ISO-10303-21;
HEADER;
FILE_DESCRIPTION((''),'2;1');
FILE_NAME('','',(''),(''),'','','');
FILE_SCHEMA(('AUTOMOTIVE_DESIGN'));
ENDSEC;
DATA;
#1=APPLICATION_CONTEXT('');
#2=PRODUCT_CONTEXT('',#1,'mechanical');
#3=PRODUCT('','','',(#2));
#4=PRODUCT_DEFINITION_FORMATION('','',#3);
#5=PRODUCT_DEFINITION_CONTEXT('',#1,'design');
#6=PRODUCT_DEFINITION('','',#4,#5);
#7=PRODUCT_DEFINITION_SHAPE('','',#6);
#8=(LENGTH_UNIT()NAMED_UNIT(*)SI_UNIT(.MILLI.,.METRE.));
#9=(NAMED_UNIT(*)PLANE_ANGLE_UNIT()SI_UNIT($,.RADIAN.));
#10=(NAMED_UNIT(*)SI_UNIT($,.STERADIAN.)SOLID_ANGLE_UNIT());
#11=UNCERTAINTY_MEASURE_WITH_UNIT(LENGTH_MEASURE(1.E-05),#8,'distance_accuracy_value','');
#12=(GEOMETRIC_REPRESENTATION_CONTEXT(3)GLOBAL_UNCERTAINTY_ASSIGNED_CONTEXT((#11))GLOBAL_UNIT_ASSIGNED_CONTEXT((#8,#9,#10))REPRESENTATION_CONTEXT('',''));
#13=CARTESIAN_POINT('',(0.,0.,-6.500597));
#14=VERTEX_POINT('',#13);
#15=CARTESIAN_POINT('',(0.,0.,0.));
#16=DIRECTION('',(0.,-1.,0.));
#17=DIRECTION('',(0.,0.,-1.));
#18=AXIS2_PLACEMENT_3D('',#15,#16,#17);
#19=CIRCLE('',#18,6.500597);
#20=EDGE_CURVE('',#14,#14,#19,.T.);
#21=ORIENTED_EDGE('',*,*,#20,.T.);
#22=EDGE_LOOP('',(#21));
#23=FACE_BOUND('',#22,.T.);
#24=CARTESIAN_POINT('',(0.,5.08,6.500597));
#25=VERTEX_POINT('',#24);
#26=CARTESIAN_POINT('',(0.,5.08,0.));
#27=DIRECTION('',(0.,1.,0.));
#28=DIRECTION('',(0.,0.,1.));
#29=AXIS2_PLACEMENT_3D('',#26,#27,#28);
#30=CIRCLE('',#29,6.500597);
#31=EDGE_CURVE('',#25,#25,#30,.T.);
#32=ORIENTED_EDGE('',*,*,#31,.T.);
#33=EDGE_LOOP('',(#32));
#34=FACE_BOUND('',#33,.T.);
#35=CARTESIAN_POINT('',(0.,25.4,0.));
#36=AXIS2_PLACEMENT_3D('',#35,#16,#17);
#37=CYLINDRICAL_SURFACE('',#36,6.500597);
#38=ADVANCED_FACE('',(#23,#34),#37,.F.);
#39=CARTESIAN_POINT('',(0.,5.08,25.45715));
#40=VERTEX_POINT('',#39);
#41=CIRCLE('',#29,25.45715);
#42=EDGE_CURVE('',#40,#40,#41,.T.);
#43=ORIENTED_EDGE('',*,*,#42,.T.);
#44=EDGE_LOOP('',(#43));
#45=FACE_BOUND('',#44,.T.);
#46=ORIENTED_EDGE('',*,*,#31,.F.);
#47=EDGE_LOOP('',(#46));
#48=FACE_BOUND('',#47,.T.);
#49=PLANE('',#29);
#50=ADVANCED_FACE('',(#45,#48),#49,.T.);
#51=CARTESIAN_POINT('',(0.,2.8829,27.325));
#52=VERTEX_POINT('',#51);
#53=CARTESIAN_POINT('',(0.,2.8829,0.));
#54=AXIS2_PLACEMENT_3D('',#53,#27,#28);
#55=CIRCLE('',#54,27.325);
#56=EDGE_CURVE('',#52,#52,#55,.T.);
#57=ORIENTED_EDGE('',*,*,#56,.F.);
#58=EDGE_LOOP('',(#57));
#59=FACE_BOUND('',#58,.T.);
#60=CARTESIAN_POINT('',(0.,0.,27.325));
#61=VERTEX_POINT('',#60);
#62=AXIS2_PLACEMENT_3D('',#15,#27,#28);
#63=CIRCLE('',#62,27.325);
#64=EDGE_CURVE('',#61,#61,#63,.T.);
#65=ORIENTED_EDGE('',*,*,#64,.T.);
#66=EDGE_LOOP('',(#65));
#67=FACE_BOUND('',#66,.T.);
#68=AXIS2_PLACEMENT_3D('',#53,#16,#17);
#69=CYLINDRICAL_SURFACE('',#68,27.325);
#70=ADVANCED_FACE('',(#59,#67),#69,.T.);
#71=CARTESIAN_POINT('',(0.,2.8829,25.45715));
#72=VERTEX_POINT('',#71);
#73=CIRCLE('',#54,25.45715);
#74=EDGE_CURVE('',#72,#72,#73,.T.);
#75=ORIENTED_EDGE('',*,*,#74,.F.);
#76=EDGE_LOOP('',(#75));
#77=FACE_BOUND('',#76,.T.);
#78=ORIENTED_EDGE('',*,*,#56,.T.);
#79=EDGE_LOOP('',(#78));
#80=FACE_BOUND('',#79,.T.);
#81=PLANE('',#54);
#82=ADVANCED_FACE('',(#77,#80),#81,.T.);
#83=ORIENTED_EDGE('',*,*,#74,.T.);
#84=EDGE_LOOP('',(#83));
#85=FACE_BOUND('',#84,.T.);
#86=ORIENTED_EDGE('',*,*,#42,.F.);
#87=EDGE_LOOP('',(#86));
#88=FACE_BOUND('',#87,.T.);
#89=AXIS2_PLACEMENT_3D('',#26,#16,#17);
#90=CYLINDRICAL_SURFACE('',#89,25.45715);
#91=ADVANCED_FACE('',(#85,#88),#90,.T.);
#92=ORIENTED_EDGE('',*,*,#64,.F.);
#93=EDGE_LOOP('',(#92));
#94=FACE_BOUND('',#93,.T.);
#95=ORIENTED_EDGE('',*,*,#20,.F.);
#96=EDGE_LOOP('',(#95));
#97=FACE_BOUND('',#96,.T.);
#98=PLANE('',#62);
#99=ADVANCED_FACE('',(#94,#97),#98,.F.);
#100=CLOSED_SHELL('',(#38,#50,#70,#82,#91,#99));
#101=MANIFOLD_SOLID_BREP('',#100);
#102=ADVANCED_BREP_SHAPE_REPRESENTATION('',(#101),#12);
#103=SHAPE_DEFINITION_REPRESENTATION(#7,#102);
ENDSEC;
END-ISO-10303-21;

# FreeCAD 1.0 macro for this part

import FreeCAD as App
import Part
import Sketcher

V = App.Vector
Q = App.Units.Quantity

doc = App.newDocument("Part")
body = doc.addObject("PartDesign::Body", "Body")

# Sketch on XZ plane
sketch1 = body.newObject("Sketcher::SketchObject", "Sketch")
sketch1.AttachmentSupport = (doc.getObject("XZ_Plane"), [""])
sketch1.MapMode = "FlatFace"
sketch1.addGeometry(Part.Circle(V(0, 0, 0), V(0, 0, 1), 27), False)
sketch1.addConstraint([
    Sketcher.Constraint("Coincident", 0, 3, -1, 1),
    Sketcher.Constraint("Diameter", 0, Q("54.65 mm")),
])
pad1 = body.newObject("PartDesign::Pad", "Pad")
pad1.Profile = sketch1
pad1.Length = Q("0.1135 in")
pad1.Reversed = True

# Sketch on XZ plane
sketch2 = body.newObject("Sketcher::SketchObject", "Sketch001")
sketch2.AttachmentSupport = (doc.getObject("XZ_Plane"), [""])
sketch2.MapMode = "FlatFace"
sketch2.AttachmentOffset = App.Placement(V(0, 0, -0.1135 * 25.4), App.Rotation())
sketch2.addGeometry(Part.Circle(V(0, 0, 0), V(0, 0, 1), 25), False)
sketch2.addConstraint([
    Sketcher.Constraint("Coincident", 0, 3, -1, 1),
    Sketcher.Constraint("Diameter", 0, Q("2.0045 in")),
])
pad2 = body.newObject("PartDesign::Pad", "Pad001")
pad2.Profile = sketch2
pad2.Length = Q("0.0865 in")
pad2.Reversed = True

# Sketch on XZ plane
sketch3 = body.newObject("Sketcher::SketchObject", "Sketch002")
sketch3.AttachmentSupport = (doc.getObject("XZ_Plane"), [""])
sketch3.MapMode = "FlatFace"
sketch3.addGeometry(Part.Circle(V(0, 0, 0), V(0, 0, 1), 7), False)
sketch3.addConstraint([
    Sketcher.Constraint("Coincident", 0, 3, -1, 1),
    Sketcher.Constraint("Diameter", 0, Q("13.001193 mm")),
])
pocket1 = body.newObject("PartDesign::Pocket", "Pocket")
pocket1.Profile = sketch3
pocket1.Length = Q("1 in")

doc.recompute()
